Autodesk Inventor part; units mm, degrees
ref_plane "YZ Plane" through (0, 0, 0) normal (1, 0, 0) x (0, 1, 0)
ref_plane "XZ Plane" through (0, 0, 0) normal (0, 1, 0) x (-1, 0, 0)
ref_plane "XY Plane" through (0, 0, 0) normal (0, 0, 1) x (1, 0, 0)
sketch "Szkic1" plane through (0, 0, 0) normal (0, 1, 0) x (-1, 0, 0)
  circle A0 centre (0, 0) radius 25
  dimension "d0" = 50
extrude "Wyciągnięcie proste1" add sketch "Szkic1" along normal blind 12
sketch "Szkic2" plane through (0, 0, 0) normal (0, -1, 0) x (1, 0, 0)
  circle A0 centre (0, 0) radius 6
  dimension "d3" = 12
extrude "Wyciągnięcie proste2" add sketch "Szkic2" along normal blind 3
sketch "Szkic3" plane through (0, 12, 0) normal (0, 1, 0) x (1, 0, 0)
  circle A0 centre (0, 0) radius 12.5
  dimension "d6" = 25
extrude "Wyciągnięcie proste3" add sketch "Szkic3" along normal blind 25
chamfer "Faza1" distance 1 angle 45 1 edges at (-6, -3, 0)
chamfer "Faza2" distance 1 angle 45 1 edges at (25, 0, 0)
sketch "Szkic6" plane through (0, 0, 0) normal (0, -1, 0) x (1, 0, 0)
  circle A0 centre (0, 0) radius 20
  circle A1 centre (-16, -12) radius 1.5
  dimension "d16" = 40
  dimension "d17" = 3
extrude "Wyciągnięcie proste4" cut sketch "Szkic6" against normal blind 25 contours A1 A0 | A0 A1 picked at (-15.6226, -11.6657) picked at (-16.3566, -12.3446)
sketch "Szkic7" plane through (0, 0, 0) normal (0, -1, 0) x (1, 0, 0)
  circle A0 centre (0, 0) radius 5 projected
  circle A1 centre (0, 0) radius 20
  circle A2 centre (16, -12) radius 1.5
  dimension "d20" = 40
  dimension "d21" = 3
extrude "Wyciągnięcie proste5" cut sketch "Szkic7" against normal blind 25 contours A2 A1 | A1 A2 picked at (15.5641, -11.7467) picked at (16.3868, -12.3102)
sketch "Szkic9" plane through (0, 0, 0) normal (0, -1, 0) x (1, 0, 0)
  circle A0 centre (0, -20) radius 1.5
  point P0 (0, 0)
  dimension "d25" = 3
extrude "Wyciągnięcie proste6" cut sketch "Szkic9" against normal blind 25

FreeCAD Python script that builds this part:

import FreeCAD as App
import Part
import Sketcher
Q = App.Units.Quantity


def edges_at(feature, points):
    """Names of the edges that pass closest to the given points."""
    edges = feature.Shape.Edges
    near = lambda p: min(range(len(edges)), key=lambda i: edges[i].distToShape(Part.Vertex(*p))[0])
    return sorted({f"Edge{near(p) + 1}" for p in points})

doc = App.newDocument("Part")
params = doc.addObject("Spreadsheet::Sheet", "Params")
for row, (alias, value) in enumerate([
    ("sketch1_diameter", "50 mm"),
    ("pad1_length", "12 mm"),
    ("sketch2_diameter", "12 mm"),
    ("pad2_length", "3 mm"),
    ("sketch3_diameter", "25 mm"),
    ("pad3_length", "25 mm"),
    ("chamfer_size", "1 mm"),
    ("chamfer2_size", "1 mm"),
    ("sketch4_diameter", "3 mm"),
    ("pocket1_length", "25 mm"),
    ("sketch5_diameter", "3 mm"),
    ("pocket2_length", "25 mm"),
    ("sketch6_diameter", "3 mm"),
    ("pocket3_length", "25 mm"),
], start=1):
    params.set(f"A{row}", alias)
    params.set(f"B{row}", "=" + value)
    params.setAlias(f"B{row}", alias)

body = doc.addObject("PartDesign::Body", "Body")

sketch1 = body.newObject("Sketcher::SketchObject", "Sketch")
sketch1.AttachmentSupport = (doc.getObject("XZ_Plane"), [""])
sketch1.MapMode = "FlatFace"
sketch1.addGeometry(Part.Circle(App.Vector(0, 0, 0), App.Vector(0, 0, 1), 25), False)
sketch1.addConstraint([
    Sketcher.Constraint("Coincident", 0, 3, -1, 1),
    Sketcher.Constraint("Diameter", 0, Q("50 mm")),
])
sketch1.setExpression("Constraints[1]", "Params.sketch1_diameter")
pad1 = body.newObject("PartDesign::Pad", "Pad")
pad1.Profile = sketch1
pad1.setExpression("Length", "Params.pad1_length")
pad1.Reversed = True

sketch2 = body.newObject("Sketcher::SketchObject", "Sketch001")
sketch2.AttachmentSupport = (doc.getObject("XZ_Plane"), [""])
sketch2.MapMode = "FlatFace"
sketch2.addGeometry(Part.Circle(App.Vector(0, 0, 0), App.Vector(0, 0, 1), 6), False)
sketch2.addConstraint([
    Sketcher.Constraint("Coincident", 0, 3, -1, 1),
    Sketcher.Constraint("Diameter", 0, Q("12 mm")),
])
sketch2.setExpression("Constraints[1]", "Params.sketch2_diameter")
pad2 = body.newObject("PartDesign::Pad", "Pad001")
pad2.Profile = sketch2
pad2.setExpression("Length", "Params.pad2_length")

sketch3 = body.newObject("Sketcher::SketchObject", "Sketch002")
sketch3.AttachmentSupport = (doc.getObject("XZ_Plane"), [""])
sketch3.MapMode = "FlatFace"
sketch3.AttachmentOffset = App.Placement(App.Vector(0, 0, -12), App.Rotation())
sketch3.addGeometry(Part.Circle(App.Vector(0, 0, 0), App.Vector(0, 0, 1), 12), False)
sketch3.addConstraint([
    Sketcher.Constraint("Coincident", 0, 3, -1, 1),
    Sketcher.Constraint("Diameter", 0, Q("25 mm")),
])
sketch3.setExpression("Constraints[1]", "Params.sketch3_diameter")
pad3 = body.newObject("PartDesign::Pad", "Pad002")
pad3.Profile = sketch3
pad3.setExpression("Length", "Params.pad3_length")
pad3.Reversed = True
doc.recompute()

chamfer = body.newObject("PartDesign::Chamfer", "Chamfer")
chamfer.Base = (pad3, edges_at(pad3, [(-6, -3, 0)]))
chamfer.setExpression("Size", "Params.chamfer_size")
doc.recompute()

chamfer2 = body.newObject("PartDesign::Chamfer", "Chamfer001")
chamfer2.Base = (chamfer, edges_at(chamfer, [(25, 0, 0)]))
chamfer2.setExpression("Size", "Params.chamfer2_size")

sketch4 = body.newObject("Sketcher::SketchObject", "Sketch003")
sketch4.AttachmentSupport = (doc.getObject("XZ_Plane"), [""])
sketch4.MapMode = "FlatFace"
sketch4.addGeometry(Part.Circle(App.Vector(-16, -12, 0), App.Vector(0, 0, 1), 1.5), False)
sketch4.addConstraint([
    Sketcher.Constraint("Diameter", 0, Q("3 mm")),
    Sketcher.Constraint("DistanceX", 0, 3, -1, 1, Q("16 mm")),
    Sketcher.Constraint("DistanceY", 0, 3, -1, 1, Q("12 mm")),
])
sketch4.setExpression("Constraints[0]", "Params.sketch4_diameter")
pocket1 = body.newObject("PartDesign::Pocket", "Pocket")
pocket1.Profile = sketch4
pocket1.setExpression("Length", "Params.pocket1_length")

sketch5 = body.newObject("Sketcher::SketchObject", "Sketch004")
sketch5.AttachmentSupport = (doc.getObject("XZ_Plane"), [""])
sketch5.MapMode = "FlatFace"
sketch5.addGeometry(Part.Circle(App.Vector(16, -12, 0), App.Vector(0, 0, 1), 1.5), False)
sketch5.addConstraint([
    Sketcher.Constraint("Diameter", 0, Q("3 mm")),
    Sketcher.Constraint("DistanceX", -1, 1, 0, 3, Q("16 mm")),
    Sketcher.Constraint("DistanceY", 0, 3, -1, 1, Q("12 mm")),
])
sketch5.setExpression("Constraints[0]", "Params.sketch5_diameter")
pocket2 = body.newObject("PartDesign::Pocket", "Pocket001")
pocket2.Profile = sketch5
pocket2.setExpression("Length", "Params.pocket2_length")

sketch6 = body.newObject("Sketcher::SketchObject", "Sketch005")
sketch6.AttachmentSupport = (doc.getObject("XZ_Plane"), [""])
sketch6.MapMode = "FlatFace"
sketch6.addGeometry(Part.Circle(App.Vector(0, -20, 0), App.Vector(0, 0, 1), 1.5), False)
sketch6.addConstraint([
    Sketcher.Constraint("PointOnObject", 0, 3, -2),
    Sketcher.Constraint("Diameter", 0, Q("3 mm")),
    Sketcher.Constraint("DistanceY", 0, 3, -1, 1, Q("20 mm")),
])
sketch6.setExpression("Constraints[1]", "Params.sketch6_diameter")
pocket3 = body.newObject("PartDesign::Pocket", "Pocket002")
pocket3.Profile = sketch6
pocket3.setExpression("Length", "Params.pocket3_length")

doc.recompute()
